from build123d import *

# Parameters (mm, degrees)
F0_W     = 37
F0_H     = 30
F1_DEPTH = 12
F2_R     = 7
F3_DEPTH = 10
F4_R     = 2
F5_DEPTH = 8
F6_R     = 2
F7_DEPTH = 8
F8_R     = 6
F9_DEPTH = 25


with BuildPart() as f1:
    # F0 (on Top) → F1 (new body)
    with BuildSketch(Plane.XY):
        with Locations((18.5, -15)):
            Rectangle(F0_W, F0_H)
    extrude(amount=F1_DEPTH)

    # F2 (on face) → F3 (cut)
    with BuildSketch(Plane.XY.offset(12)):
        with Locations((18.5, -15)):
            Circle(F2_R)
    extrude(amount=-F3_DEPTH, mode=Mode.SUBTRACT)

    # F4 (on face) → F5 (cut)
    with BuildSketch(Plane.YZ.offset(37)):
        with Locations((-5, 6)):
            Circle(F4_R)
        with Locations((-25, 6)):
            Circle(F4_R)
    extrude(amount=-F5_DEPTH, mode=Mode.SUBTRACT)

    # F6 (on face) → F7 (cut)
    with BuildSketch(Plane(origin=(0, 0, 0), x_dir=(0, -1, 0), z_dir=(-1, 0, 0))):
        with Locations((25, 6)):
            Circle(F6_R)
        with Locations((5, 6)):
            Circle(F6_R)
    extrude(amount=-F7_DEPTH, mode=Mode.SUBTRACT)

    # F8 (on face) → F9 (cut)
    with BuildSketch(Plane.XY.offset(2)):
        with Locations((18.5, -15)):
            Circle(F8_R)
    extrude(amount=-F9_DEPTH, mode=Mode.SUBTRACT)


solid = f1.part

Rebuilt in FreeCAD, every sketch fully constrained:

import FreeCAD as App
import Part
import Sketcher
from FreeCAD import Vector
Q = App.Units.Quantity

doc = App.newDocument("Part")
body = doc.addObject("PartDesign::Body", "Body")

sketch1 = body.newObject("Sketcher::SketchObject", "Sketch")
sketch1.AttachmentSupport = (doc.getObject("XY_Plane"), [""])
sketch1.MapMode = "FlatFace"
sketch1.addGeometry(Part.LineSegment(Vector(0, 0, 0), Vector(0, -30, 0)), False)
sketch1.addGeometry(Part.LineSegment(Vector(0, -30, 0), Vector(37, -30, 0)), False)
sketch1.addGeometry(Part.LineSegment(Vector(37, -30, 0), Vector(37, 0, 0)), False)
sketch1.addGeometry(Part.LineSegment(Vector(37, 0, 0), Vector(0, 0, 0)), False)
sketch1.addConstraint(Sketcher.Constraint("Coincident", 0, 2, 1, 1))
sketch1.addConstraint(Sketcher.Constraint("Coincident", 1, 2, 2, 1))
sketch1.addConstraint(Sketcher.Constraint("Coincident", 2, 2, 3, 1))
sketch1.addConstraint(Sketcher.Constraint("Coincident", 3, 2, 0, 1))
sketch1.addConstraint(Sketcher.Constraint("Vertical", 0))
sketch1.addConstraint(Sketcher.Constraint("Horizontal", 1))
sketch1.addConstraint(Sketcher.Constraint("Vertical", 2))
sketch1.addConstraint(Sketcher.Constraint("Horizontal", 3))
sketch1.addConstraint(Sketcher.Constraint("Coincident", 3, 2, -1, 1))
sketch1.addConstraint(Sketcher.Constraint("DistanceX", 1, 1, 1, 2, Q("37 mm")))
sketch1.addConstraint(Sketcher.Constraint("DistanceY", 0, 2, 0, 1, Q("30 mm")))
pad1 = body.newObject("PartDesign::Pad", "Pad")
pad1.Profile = sketch1
pad1.Length = 12

sketch2 = body.newObject("Sketcher::SketchObject", "Sketch001")
sketch2.AttachmentSupport = (doc.getObject("XY_Plane"), [""])
sketch2.MapMode = "FlatFace"
sketch2.AttachmentOffset = App.Placement(Vector(0, 0, 12), App.Rotation())
sketch2.addGeometry(Part.Circle(Vector(18, -15, 0), Vector(0, 0, 1), 7), False)
sketch2.addConstraint(Sketcher.Constraint("Diameter", 0, Q("14 mm")))
sketch2.addConstraint(Sketcher.Constraint("DistanceY", 0, 3, -1, 1, Q("15 mm")))
sketch2.addConstraint(Sketcher.Constraint("DistanceX", -1, 1, 0, 3, Q("18.5 mm")))
pocket1 = body.newObject("PartDesign::Pocket", "Pocket")
pocket1.Profile = sketch2
pocket1.Length = 10

sketch3 = body.newObject("Sketcher::SketchObject", "Sketch002")
sketch3.AttachmentSupport = (doc.getObject("YZ_Plane"), [""])
sketch3.MapMode = "FlatFace"
sketch3.AttachmentOffset = App.Placement(Vector(0, 0, 37), App.Rotation())
sketch3.addGeometry(Part.Circle(Vector(-5, 6, 0), Vector(0, 0, 1), 2), False)
sketch3.addGeometry(Part.Circle(Vector(-25, 6, 0), Vector(0, 0, 1), 2), False)
sketch3.addConstraint(Sketcher.Constraint("Equal", 0, 1))
sketch3.addConstraint(Sketcher.Constraint("Horizontal", 0, 3, 1, 3))
sketch3.addConstraint(Sketcher.Constraint("Diameter", 0, Q("4 mm")))
sketch3.addConstraint(Sketcher.Constraint("DistanceX", 0, 3, -1, 1, Q("5 mm")))
sketch3.addConstraint(Sketcher.Constraint("DistanceY", -1, 1, 0, 3, Q("6 mm")))
sketch3.addConstraint(Sketcher.Constraint("DistanceX", 1, 3, -1, 1, Q("25 mm")))
pocket2 = body.newObject("PartDesign::Pocket", "Pocket001")
pocket2.Profile = sketch3
pocket2.Length = 8

sketch4 = body.newObject("Sketcher::SketchObject", "Sketch003")
sketch4.AttachmentSupport = (doc.getObject("YZ_Plane"), [""])
sketch4.MapMode = "FlatFace"
sketch4.addGeometry(Part.Circle(Vector(-25, 6, 0), Vector(0, 0, 1), 2), False)
sketch4.addGeometry(Part.Circle(Vector(-5, 6, 0), Vector(0, 0, 1), 2), False)
sketch4.addConstraint(Sketcher.Constraint("Equal", 0, 1))
sketch4.addConstraint(Sketcher.Constraint("Horizontal", 0, 3, 1, 3))
sketch4.addConstraint(Sketcher.Constraint("Diameter", 0, Q("4 mm")))
sketch4.addConstraint(Sketcher.Constraint("DistanceX", 0, 3, -1, 1, Q("25 mm")))
sketch4.addConstraint(Sketcher.Constraint("DistanceY", -1, 1, 0, 3, Q("6 mm")))
sketch4.addConstraint(Sketcher.Constraint("DistanceX", 1, 3, -1, 1, Q("5 mm")))
pocket3 = body.newObject("PartDesign::Pocket", "Pocket002")
pocket3.Profile = sketch4
pocket3.Length = 8
pocket3.Reversed = True

sketch5 = body.newObject("Sketcher::SketchObject", "Sketch004")
sketch5.AttachmentSupport = (doc.getObject("XY_Plane"), [""])
sketch5.MapMode = "FlatFace"
sketch5.AttachmentOffset = App.Placement(Vector(0, 0, 2), App.Rotation())
sketch5.addGeometry(Part.Circle(Vector(18, -15, 0), Vector(0, 0, 1), 6), False)
sketch5.addConstraint(Sketcher.Constraint("Diameter", 0, Q("12 mm")))
sketch5.addConstraint(Sketcher.Constraint("DistanceY", 0, 3, -1, 1, Q("15 mm")))
sketch5.addConstraint(Sketcher.Constraint("DistanceX", -1, 1, 0, 3, Q("18.5 mm")))
pocket4 = body.newObject("PartDesign::Pocket", "Pocket003")
pocket4.Profile = sketch5
pocket4.Length = 25

doc.recompute()
